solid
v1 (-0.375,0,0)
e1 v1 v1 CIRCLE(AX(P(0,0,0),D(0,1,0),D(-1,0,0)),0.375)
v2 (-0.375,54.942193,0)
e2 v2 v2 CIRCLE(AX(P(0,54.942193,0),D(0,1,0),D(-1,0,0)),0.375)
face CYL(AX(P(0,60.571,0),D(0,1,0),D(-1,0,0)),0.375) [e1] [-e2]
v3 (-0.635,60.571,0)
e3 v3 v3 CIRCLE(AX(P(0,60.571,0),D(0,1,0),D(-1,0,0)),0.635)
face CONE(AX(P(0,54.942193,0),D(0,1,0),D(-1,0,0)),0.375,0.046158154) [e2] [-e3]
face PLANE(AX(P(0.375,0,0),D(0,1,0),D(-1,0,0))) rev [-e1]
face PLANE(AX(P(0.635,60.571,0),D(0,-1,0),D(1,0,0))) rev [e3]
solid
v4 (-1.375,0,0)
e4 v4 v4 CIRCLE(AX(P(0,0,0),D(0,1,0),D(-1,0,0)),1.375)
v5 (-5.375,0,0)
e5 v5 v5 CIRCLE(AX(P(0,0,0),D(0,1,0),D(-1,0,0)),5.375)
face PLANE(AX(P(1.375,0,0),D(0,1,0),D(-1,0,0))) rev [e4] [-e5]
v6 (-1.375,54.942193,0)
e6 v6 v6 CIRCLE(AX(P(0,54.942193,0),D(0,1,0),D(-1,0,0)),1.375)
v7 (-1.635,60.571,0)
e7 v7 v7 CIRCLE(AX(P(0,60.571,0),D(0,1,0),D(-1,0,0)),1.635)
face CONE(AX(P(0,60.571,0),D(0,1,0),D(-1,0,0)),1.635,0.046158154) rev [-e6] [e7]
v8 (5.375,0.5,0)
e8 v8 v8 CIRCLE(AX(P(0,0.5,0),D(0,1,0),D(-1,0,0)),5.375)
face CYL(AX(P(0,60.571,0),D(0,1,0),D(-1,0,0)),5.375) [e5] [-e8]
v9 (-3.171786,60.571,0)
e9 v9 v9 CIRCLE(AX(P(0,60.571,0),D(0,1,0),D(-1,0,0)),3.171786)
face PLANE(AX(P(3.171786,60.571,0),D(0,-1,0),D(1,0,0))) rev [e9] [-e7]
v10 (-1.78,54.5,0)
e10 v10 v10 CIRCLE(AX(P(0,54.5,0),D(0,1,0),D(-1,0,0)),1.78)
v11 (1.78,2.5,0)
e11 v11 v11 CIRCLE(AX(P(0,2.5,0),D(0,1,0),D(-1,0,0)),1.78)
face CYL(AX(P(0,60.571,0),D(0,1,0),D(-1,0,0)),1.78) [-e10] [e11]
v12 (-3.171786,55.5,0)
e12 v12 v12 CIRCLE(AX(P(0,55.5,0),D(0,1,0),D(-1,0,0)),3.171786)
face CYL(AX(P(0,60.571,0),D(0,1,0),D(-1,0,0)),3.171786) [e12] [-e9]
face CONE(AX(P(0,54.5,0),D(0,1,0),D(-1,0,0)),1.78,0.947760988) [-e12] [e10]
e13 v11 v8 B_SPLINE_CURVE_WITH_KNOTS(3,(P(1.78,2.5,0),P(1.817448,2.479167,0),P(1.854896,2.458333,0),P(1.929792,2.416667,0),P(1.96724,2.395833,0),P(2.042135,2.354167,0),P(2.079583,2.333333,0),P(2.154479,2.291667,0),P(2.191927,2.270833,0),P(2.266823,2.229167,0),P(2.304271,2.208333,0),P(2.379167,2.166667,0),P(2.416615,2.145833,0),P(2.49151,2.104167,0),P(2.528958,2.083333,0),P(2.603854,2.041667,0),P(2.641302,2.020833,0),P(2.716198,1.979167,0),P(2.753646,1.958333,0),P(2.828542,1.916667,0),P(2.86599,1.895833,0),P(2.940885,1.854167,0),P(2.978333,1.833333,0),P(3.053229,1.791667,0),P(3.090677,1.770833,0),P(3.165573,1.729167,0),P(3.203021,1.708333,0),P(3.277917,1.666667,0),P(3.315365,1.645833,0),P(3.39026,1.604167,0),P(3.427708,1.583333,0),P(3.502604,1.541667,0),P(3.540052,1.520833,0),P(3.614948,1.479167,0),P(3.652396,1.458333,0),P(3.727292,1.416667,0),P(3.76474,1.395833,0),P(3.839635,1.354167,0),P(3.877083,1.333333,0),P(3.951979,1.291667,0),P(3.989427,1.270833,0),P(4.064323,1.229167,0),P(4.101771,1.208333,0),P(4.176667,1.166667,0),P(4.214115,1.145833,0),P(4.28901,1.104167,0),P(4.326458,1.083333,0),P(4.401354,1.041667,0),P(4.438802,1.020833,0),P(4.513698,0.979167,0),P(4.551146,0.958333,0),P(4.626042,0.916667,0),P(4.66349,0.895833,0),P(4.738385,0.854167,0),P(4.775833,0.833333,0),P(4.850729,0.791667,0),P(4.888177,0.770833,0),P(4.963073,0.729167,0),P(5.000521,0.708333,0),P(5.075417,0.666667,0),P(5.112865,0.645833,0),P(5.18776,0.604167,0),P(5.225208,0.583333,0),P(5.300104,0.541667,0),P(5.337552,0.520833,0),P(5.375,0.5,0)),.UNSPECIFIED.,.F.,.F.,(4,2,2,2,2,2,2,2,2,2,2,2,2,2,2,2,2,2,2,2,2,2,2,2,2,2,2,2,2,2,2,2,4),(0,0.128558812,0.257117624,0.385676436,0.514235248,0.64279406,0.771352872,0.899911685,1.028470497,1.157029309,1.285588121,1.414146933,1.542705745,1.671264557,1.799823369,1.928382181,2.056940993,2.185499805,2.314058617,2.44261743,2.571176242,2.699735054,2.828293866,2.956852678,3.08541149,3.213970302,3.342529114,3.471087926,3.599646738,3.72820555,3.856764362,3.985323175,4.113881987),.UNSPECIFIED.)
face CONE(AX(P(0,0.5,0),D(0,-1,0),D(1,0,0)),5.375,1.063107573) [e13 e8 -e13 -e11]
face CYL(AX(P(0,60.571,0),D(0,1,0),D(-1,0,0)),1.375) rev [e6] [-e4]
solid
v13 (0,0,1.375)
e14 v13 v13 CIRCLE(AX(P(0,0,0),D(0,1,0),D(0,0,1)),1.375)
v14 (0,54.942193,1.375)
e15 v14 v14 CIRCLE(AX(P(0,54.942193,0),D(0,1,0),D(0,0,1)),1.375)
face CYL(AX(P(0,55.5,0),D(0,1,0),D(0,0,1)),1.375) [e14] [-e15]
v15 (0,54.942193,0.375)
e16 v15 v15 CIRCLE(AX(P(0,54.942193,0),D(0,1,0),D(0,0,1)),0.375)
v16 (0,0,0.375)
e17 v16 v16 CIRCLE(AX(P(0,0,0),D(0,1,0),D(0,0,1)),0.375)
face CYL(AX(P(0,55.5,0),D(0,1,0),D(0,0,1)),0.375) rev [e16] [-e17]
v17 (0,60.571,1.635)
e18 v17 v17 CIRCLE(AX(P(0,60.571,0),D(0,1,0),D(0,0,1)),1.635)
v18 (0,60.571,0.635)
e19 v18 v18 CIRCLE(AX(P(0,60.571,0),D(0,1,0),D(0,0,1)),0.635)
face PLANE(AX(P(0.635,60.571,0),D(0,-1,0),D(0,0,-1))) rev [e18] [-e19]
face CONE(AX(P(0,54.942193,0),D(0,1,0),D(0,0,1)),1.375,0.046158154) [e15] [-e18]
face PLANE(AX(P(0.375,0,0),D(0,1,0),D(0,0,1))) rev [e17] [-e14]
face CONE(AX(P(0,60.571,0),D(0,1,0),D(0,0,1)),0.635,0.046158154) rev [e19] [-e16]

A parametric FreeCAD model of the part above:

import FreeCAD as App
import Part
import Sketcher

V = App.Vector


def add_polygon(sketch, points):
    """Adds a closed chain of lines whose ends are joined by coincident constraints."""
    first, n = sketch.GeometryCount, len(points)
    for a, b in zip(points, points[1:] + points[:1]):
        sketch.addGeometry(Part.LineSegment(App.Vector(*a, 0), App.Vector(*b, 0)), False)
    for i in range(n):
        sketch.addConstraint(Sketcher.Constraint("Coincident", first + i, 2, first + (i + 1) % n, 1))

doc = App.newDocument("Part")
body = doc.addObject("PartDesign::Body", "Body")
body.AllowCompound = True

sketch1 = doc.addObject("Sketcher::SketchObject", "Sketch")
body.addObject(sketch1)
sketch1.AttachmentSupport = (doc.XY_Plane, [""])
sketch1.MapMode = "FlatFace"
add_polygon(sketch1, [(5.38, 0), (5.38, 0.5), (1.78, 2.5), (1.78, 54.5), (3.17, 55.5), (3.17, 60.57), (1.64, 60.57), (1.38, 54.94), (1.38, 0)])
add_polygon(sketch1, [(0.38, 0), (0.38, 54.94), (0.64, 60.57), (0, 60.57), (0, 0)])
sketch1.addConstraint([
    Sketcher.Constraint("Vertical", 0),
    Sketcher.Constraint("Vertical", 2),
    Sketcher.Constraint("Vertical", 4),
    Sketcher.Constraint("Horizontal", 5),
    Sketcher.Constraint("Vertical", 7),
    Sketcher.Constraint("Horizontal", 8),
    Sketcher.Constraint("Vertical", 9),
    Sketcher.Constraint("Horizontal", 11),
    Sketcher.Constraint("Vertical", 12),
    Sketcher.Constraint("Horizontal", 13),
    Sketcher.Constraint("Coincident", 12, 2, -1, 1),
    Sketcher.Constraint("PointOnObject", 7, 2, -1),
    Sketcher.Constraint("Parallel", 6, 10),
    Sketcher.Constraint("Horizontal", 6, 2, 9, 2),
    Sketcher.Constraint("Horizontal", 5, 2, 10, 2),
    Sketcher.Constraint("DistanceX", 8, 1, 8, 2, 4.0),
    Sketcher.Constraint("DistanceY", 2, 1, 2, 2, 52.0),
    Sketcher.Constraint("DistanceY", 0, 1, 0, 2, 0.5),
    Sketcher.Constraint("DistanceY", 0, 2, 1, 2, 2.0),
    Sketcher.Constraint("DistanceY", 2, 2, 3, 2, 1.0),
    Sketcher.Constraint("DistanceX", 9, 2, 6, 2, 1.0),
    Sketcher.Constraint("DistanceX", 11, 2, 11, 1, 0.635),
    Sketcher.Constraint("DistanceX", 13, 1, 13, 2, 0.375),
    Sketcher.Constraint("DistanceY", 4, 1, 4, 2, 5.071),
    Sketcher.Constraint("DistanceX", -1, 1, 1, 2, 1.78),
    Sketcher.Constraint("Distance", 6, 5.634808),
    Sketcher.Constraint("DistanceX", 5, 2, 5, 1, 1.536786),
])
revolution = doc.addObject("PartDesign::Revolution", "Revolution")
body.addObject(revolution)
revolution.Profile = sketch1
revolution.ReferenceAxis = (sketch1, ["V_Axis"])
revolution.Angle = 360
body2 = doc.addObject("PartDesign::Body", "Body001")

sketch2 = doc.addObject("Sketcher::SketchObject", "Sketch001")
body2.addObject(sketch2)
sketch2.AttachmentSupport = (doc.getObject("XY_Plane001"), [""])
sketch2.MapMode = "FlatFace"
add_polygon(sketch2, [(0.6, 60.6), (0.4, 54.9), (0.4, 0), (1.4, 0), (1.4, 54.9), (1.6, 60.6)])
sketch2.addConstraint([
    Sketcher.Constraint("Vertical", 1),
    Sketcher.Constraint("Horizontal", 2),
    Sketcher.Constraint("Vertical", 3),
    Sketcher.Constraint("Horizontal", 5),
    Sketcher.Constraint("PointOnObject", 1, 2, -1),
    Sketcher.Constraint("Parallel", 0, 4),
    Sketcher.Constraint("Horizontal", 0, 2, 3, 2),
    Sketcher.Constraint("DistanceX", 2, 1, 2, 2, 1.0),
    Sketcher.Constraint("DistanceX", 3, 2, 4, 2, 0.26),
    Sketcher.Constraint("DistanceX", -1, 1, 0, 2, 0.375),
    Sketcher.Constraint("DistanceY", -1, 1, 4, 2, 60.571),
    Sketcher.Constraint("Distance", 0, 5.634808),
])
revolution2 = doc.addObject("PartDesign::Revolution", "Revolution001")
body2.addObject(revolution2)
revolution2.Profile = sketch2
revolution2.ReferenceAxis = (sketch2, ["V_Axis"])
revolution2.Angle = 360

doc.recompute()
